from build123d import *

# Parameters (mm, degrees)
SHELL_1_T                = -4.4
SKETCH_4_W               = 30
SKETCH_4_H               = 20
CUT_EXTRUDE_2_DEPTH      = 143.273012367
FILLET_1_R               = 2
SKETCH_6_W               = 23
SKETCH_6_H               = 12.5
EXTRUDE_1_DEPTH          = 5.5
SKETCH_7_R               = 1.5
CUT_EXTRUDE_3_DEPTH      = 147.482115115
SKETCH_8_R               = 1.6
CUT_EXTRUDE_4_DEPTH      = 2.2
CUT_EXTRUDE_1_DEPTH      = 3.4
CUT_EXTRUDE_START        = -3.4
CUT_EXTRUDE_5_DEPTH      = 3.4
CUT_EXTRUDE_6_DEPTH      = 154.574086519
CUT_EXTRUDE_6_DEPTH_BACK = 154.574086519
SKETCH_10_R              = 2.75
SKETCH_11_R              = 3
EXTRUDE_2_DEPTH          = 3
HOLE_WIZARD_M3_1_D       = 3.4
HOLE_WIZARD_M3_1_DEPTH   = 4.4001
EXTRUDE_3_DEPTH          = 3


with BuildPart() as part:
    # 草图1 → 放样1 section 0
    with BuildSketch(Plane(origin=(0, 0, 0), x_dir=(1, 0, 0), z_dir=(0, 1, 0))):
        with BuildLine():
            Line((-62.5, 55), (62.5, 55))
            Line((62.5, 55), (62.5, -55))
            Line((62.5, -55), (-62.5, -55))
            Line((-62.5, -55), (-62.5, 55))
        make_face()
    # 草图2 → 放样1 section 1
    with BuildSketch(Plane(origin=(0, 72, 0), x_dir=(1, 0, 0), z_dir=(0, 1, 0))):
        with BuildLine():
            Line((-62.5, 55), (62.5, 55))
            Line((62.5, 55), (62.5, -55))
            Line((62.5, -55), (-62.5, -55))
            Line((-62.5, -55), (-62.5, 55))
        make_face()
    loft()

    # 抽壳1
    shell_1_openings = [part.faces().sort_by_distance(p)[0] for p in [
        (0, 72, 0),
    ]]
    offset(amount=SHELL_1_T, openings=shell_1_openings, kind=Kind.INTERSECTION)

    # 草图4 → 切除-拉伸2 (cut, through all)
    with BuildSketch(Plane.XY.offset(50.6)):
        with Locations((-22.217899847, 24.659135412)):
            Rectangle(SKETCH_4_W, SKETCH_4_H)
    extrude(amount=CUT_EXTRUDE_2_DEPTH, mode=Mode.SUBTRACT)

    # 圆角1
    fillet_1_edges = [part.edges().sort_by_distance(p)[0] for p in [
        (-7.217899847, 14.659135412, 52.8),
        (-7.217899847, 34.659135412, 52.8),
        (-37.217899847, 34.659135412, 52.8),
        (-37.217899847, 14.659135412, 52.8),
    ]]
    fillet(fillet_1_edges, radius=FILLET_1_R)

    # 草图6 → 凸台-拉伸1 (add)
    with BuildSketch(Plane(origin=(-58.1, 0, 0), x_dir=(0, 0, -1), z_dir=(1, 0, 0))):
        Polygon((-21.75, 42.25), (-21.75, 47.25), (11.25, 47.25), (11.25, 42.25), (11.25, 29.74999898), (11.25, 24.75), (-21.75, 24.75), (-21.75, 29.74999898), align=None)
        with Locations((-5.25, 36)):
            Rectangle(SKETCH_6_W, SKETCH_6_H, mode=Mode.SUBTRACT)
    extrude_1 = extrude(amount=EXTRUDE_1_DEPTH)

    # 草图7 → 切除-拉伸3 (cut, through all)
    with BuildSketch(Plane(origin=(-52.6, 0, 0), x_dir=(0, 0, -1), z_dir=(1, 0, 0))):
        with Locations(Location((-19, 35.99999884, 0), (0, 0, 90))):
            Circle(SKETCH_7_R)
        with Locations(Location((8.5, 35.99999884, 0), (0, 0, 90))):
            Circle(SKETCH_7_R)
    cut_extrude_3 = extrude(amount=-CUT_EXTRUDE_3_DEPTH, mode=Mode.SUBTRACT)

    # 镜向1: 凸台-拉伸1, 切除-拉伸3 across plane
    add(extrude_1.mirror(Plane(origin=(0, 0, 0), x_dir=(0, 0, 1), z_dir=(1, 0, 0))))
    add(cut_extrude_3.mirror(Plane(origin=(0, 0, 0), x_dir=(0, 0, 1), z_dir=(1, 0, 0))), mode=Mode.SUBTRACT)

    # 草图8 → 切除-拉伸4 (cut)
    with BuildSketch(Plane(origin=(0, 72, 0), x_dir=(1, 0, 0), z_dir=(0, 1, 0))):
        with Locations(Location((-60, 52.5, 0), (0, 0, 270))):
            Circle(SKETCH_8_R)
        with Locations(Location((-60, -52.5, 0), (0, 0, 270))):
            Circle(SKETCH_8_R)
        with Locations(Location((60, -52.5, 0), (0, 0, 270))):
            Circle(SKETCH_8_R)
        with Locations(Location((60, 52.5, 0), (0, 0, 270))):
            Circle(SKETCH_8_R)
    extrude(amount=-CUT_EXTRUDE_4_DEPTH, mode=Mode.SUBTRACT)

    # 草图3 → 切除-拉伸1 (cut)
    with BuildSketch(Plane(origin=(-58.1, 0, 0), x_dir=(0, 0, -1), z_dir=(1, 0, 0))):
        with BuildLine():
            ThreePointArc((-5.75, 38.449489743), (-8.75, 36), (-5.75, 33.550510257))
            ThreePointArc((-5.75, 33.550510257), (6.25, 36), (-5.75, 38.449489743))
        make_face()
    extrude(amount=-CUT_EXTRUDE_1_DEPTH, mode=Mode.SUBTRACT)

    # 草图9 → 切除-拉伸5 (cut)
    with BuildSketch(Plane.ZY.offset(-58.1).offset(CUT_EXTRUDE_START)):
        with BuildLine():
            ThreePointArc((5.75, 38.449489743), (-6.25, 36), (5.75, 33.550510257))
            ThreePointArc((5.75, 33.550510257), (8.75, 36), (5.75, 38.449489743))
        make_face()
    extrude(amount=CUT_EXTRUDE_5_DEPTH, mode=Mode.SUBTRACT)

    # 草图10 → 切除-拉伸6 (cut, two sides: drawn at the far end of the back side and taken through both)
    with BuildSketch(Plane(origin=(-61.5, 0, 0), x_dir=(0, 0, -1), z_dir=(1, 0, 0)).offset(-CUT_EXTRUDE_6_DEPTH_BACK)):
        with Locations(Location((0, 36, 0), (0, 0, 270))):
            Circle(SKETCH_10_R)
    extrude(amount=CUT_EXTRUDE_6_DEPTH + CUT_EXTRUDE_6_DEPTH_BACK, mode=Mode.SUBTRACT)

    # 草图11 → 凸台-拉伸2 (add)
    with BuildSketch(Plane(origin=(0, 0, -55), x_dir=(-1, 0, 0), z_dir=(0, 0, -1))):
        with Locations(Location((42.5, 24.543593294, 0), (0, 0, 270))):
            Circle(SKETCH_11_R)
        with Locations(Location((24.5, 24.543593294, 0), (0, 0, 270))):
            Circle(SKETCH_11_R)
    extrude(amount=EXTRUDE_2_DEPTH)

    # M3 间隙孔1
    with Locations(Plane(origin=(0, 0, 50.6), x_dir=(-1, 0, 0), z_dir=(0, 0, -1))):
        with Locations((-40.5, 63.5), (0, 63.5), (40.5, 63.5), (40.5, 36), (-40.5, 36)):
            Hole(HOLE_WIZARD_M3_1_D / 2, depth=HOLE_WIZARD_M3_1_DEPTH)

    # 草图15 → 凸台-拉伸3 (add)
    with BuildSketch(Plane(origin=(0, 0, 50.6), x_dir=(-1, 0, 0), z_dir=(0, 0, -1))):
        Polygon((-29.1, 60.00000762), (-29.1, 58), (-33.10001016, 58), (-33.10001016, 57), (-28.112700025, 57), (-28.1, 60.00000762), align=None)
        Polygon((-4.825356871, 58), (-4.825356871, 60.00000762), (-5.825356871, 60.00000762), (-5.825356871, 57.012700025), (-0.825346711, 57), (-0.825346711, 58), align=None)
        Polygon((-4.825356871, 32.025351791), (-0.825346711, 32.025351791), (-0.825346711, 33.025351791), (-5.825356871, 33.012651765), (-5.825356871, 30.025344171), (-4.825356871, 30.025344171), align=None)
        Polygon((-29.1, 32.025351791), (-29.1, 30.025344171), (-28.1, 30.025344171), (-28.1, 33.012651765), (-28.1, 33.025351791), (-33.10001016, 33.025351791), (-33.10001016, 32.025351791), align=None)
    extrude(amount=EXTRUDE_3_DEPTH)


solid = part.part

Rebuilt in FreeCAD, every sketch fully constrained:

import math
import FreeCAD as App
import Part
import Sketcher
from FreeCAD import Vector


def edges_at(feature, points):
    """Names of the edges that pass closest to the given points."""
    edges = feature.Shape.Edges
    near = lambda p: min(range(len(edges)), key=lambda i: edges[i].distToShape(Part.Vertex(*p))[0])
    return sorted({f"Edge{near(p) + 1}" for p in points})


def faces_at(feature, points):
    """Names of the faces that lie closest to the given points."""
    faces = feature.Shape.Faces
    near = lambda p: min(range(len(faces)), key=lambda i: faces[i].distToShape(Part.Vertex(*p))[0])
    return sorted({f"Face{near(p) + 1}" for p in points})


def add_polygon(sketch, points):
    """Adds a closed chain of lines whose ends are joined by coincident constraints."""
    first, n = sketch.GeometryCount, len(points)
    for a, b in zip(points, points[1:] + points[:1]):
        sketch.addGeometry(Part.LineSegment(App.Vector(*a, 0), App.Vector(*b, 0)), False)
    for i in range(n):
        sketch.addConstraint(Sketcher.Constraint("Coincident", first + i, 2, first + (i + 1) % n, 1))

doc = App.newDocument("Part")
params = doc.addObject("Spreadsheet::Sheet", "Params")
for row, (alias, value) in enumerate([
    ("sketch1_width", "125 mm"),
    ("sketch1_height", "110 mm"),
    ("sketch2_width", "125 mm"),
    ("sketch2_height", "110 mm"),
    ("thickness_wall", "4.4 mm"),
    ("sketch3_width", "30 mm"),
    ("sketch3_height", "20 mm"),
    ("fillet_radius", "2 mm"),
    ("sketch4_height", "33 mm"),
    ("sketch4_height2", "23 mm"),
    ("sketch4_width", "22.5 mm"),
    ("sketch4_width2", "12.5 mm"),
    ("pad1_length", "5.5 mm"),
    ("sketch5_diameter", "3 mm"),
    ("sketch6_diameter", "3.2 mm"),
    ("pocket3_length", "2.2 mm"),
    ("sketch7_radius", "2.5 mm"),
    ("sketch7_radius2", "6.25 mm"),
    ("sketch7_height", "0.5 mm"),
    ("pocket4_length", "3.4 mm"),
    ("sketch8_radius", "2.5 mm"),
    ("sketch8_radius2", "6.25 mm"),
    ("pocket5_length", "3.4 mm"),
    ("sketch9_diameter", "5.5 mm"),
    ("sketch10_diameter", "6 mm"),
    ("pad2_length", "3 mm"),
    ("sketch11_diameter", "3.4 mm"),
    ("hole_diameter", "3.4 mm"),
    ("hole_depth", "4.4001 mm"),
    ("sketch12_width", "1 mm"),
    ("pad3_length", "3 mm"),
], start=1):
    params.set(f"A{row}", alias)
    params.set(f"B{row}", "=" + value)
    params.setAlias(f"B{row}", alias)

body = doc.addObject("PartDesign::Body", "Body")

# Sketch on XZ plane
sketch1 = body.newObject("Sketcher::SketchObject", "Sketch")
sketch1.AttachmentSupport = (doc.getObject("XZ_Plane"), [""])
sketch1.MapMode = "FlatFace"
add_polygon(sketch1, [(62.5, -55), (-62.5, -55), (-62.5, 55), (62.5, 55)])  # lines 0-3
sketch1.addConstraint([
    Sketcher.Constraint("Horizontal", 0),
    Sketcher.Constraint("Vertical", 1),
    Sketcher.Constraint("Horizontal", 2),
    Sketcher.Constraint("Vertical", 3),
    Sketcher.Constraint("Symmetric", 0, 2, 2, 2, -1, 1),
    Sketcher.Constraint("DistanceX", 0, 2, 0, 1, 125.0),
    Sketcher.Constraint("DistanceY", 1, 1, 1, 2, 110.0),
])
sketch1.setExpression("Constraints[9]", "Params.sketch1_width")
sketch1.setExpression("Constraints[10]", "Params.sketch1_height")

# Sketch on XZ plane
sketch2 = body.newObject("Sketcher::SketchObject", "Sketch001")
sketch2.AttachmentSupport = (doc.getObject("XZ_Plane"), [""])
sketch2.MapMode = "FlatFace"
sketch2.AttachmentOffset = App.Placement(Vector(0, 0, -72), App.Rotation())
add_polygon(sketch2, [(62.5, -55), (-62.5, -55), (-62.5, 55), (62.5, 55)])  # lines 0-3
sketch2.addConstraint([
    Sketcher.Constraint("Horizontal", 0),
    Sketcher.Constraint("Vertical", 1),
    Sketcher.Constraint("Horizontal", 2),
    Sketcher.Constraint("Vertical", 3),
    Sketcher.Constraint("Symmetric", 0, 2, 2, 2, -1, 1),
    Sketcher.Constraint("DistanceX", 0, 2, 0, 1, 125.0),
    Sketcher.Constraint("DistanceY", 1, 1, 1, 2, 110.0),
])
sketch2.setExpression("Constraints[9]", "Params.sketch2_width")
sketch2.setExpression("Constraints[10]", "Params.sketch2_height")

additiveloft = body.newObject("PartDesign::AdditiveLoft", "AdditiveLoft")
additiveloft.Profile = sketch1
additiveloft.Sections = [sketch2]
doc.recompute()

thickness = body.newObject("PartDesign::Thickness", "Thickness")
thickness.Base = (additiveloft, faces_at(additiveloft, [(0, 72, 0)]))
thickness.setExpression("Value", "Params.thickness_wall")
thickness.Reversed = True
thickness.Join = "Intersection"

# Sketch on XY plane
sketch3 = body.newObject("Sketcher::SketchObject", "Sketch002")
sketch3.AttachmentSupport = (doc.getObject("XY_Plane"), [""])
sketch3.MapMode = "FlatFace"
sketch3.AttachmentOffset = App.Placement(Vector(0, 0, 50.6), App.Rotation())
add_polygon(sketch3, [(-37.2179, 34.659135), (-37.2179, 14.659135), (-7.2179, 14.659135), (-7.2179, 34.659135)])  # lines 0-3
sketch3.addConstraint([
    Sketcher.Constraint("Vertical", 0),
    Sketcher.Constraint("Horizontal", 1),
    Sketcher.Constraint("Vertical", 2),
    Sketcher.Constraint("Horizontal", 3),
    Sketcher.Constraint("DistanceX", 1, 1, 1, 2, 30.0),
    Sketcher.Constraint("DistanceY", 0, 2, 0, 1, 20.0),
    Sketcher.Constraint("DistanceX", 0, 2, -1, 1, 37.2179),
    Sketcher.Constraint("DistanceY", -1, 1, 0, 2, 14.659135),
])
sketch3.setExpression("Constraints[8]", "Params.sketch3_width")
sketch3.setExpression("Constraints[9]", "Params.sketch3_height")
pocket1 = body.newObject("PartDesign::Pocket", "Pocket")
pocket1.Profile = sketch3
pocket1.Type = "ThroughAll"
pocket1.Reversed = True
doc.recompute()

fillet = body.newObject("PartDesign::Fillet", "Fillet")
fillet.Base = (pocket1, edges_at(pocket1, [
    (-7.218, 14.659, 52.8),
    (-7.218, 34.659, 52.8),
    (-37.218, 34.659, 52.8),
    (-37.218, 14.659, 52.8),
]))
fillet.setExpression("Radius", "Params.fillet_radius")

# Sketch on YZ plane
sketch4 = body.newObject("Sketcher::SketchObject", "Sketch003")
sketch4.AttachmentSupport = (doc.getObject("YZ_Plane"), [""])
sketch4.MapMode = "FlatFace"
sketch4.AttachmentOffset = App.Placement(Vector(0, 0, -58.1), App.Rotation())
add_polygon(sketch4, [(47.25, 21.75), (24.75, 21.75), (24.75, -11.25), (47.25, -11.25)])  # lines 0-3
add_polygon(sketch4, [(29.75, 16.75), (42.25, 16.75), (42.25, -6.25), (29.75, -6.25)])  # lines 4-7
sketch4.addConstraint([
    Sketcher.Constraint("Horizontal", 0),
    Sketcher.Constraint("Vertical", 1),
    Sketcher.Constraint("Horizontal", 2),
    Sketcher.Constraint("Vertical", 3),
    Sketcher.Constraint("Horizontal", 4),
    Sketcher.Constraint("Vertical", 5),
    Sketcher.Constraint("Horizontal", 6),
    Sketcher.Constraint("Vertical", 7),
    Sketcher.Constraint("DistanceY", 1, 2, 1, 1, 33.0),
    Sketcher.Constraint("DistanceY", 5, 2, 5, 1, 23.0),
    Sketcher.Constraint("DistanceX", 0, 2, 0, 1, 22.5),
    Sketcher.Constraint("DistanceX", 4, 1, 4, 2, 12.5),
    Sketcher.Constraint("DistanceX", 4, 2, 3, 2, 5.0),
    Sketcher.Constraint("DistanceY", 4, 2, 3, 2, 5.0),
    Sketcher.Constraint("DistanceX", -1, 1, 0, 2, 24.75),
    Sketcher.Constraint("DistanceY", -1, 1, 0, 2, 21.75),
])
sketch4.setExpression("Constraints[16]", "Params.sketch4_height")
sketch4.setExpression("Constraints[17]", "Params.sketch4_height2")
sketch4.setExpression("Constraints[18]", "Params.sketch4_width")
sketch4.setExpression("Constraints[19]", "Params.sketch4_width2")
pad1 = body.newObject("PartDesign::Pad", "Pad")
pad1.Profile = sketch4
pad1.setExpression("Length", "Params.pad1_length")

# Sketch on YZ plane
sketch5 = body.newObject("Sketcher::SketchObject", "Sketch004")
sketch5.AttachmentSupport = (doc.getObject("YZ_Plane"), [""])
sketch5.MapMode = "FlatFace"
sketch5.AttachmentOffset = App.Placement(Vector(0, 0, -52.6), App.Rotation())
sketch5.addGeometry([
    Part.Circle(Vector(35.999999, 19, 0), Vector(0, 0, 1), 1.5),
    Part.Circle(Vector(35.999999, -8.5, 0), Vector(0, 0, 1), 1.5),
], False)
sketch5.addConstraint([
    Sketcher.Constraint("Equal", 0, 1),
    Sketcher.Constraint("Vertical", 0, 3, 1, 3),
    Sketcher.Constraint("Diameter", 0, 3.0),
    Sketcher.Constraint("DistanceX", -1, 1, 0, 3, 35.999999),
    Sketcher.Constraint("DistanceY", -1, 1, 0, 3, 19.0),
    Sketcher.Constraint("DistanceY", 1, 3, -1, 1, 8.5),
])
sketch5.setExpression("Constraints[2]", "Params.sketch5_diameter")
pocket2 = body.newObject("PartDesign::Pocket", "Pocket001")
pocket2.Profile = sketch5
pocket2.Type = "ThroughAll"
doc.recompute()

mirrored = body.newObject("PartDesign::Mirrored", "Mirrored")
mirrored.Originals = [pad1, pocket2]
mirrored.MirrorPlane = (doc.getObject("YZ_Plane"), [""])
body.Tip = mirrored

# Sketch on XZ plane
sketch6 = body.newObject("Sketcher::SketchObject", "Sketch005")
sketch6.AttachmentSupport = (doc.getObject("XZ_Plane"), [""])
sketch6.MapMode = "FlatFace"
sketch6.AttachmentOffset = App.Placement(Vector(0, 0, -72), App.Rotation())
sketch6.addGeometry([
    Part.Circle(Vector(-60, -52.5, 0), Vector(0, 0, 1), 1.6),
    Part.Circle(Vector(-60, 52.5, 0), Vector(0, 0, 1), 1.6),
    Part.Circle(Vector(60, 52.5, 0), Vector(0, 0, 1), 1.6),
    Part.Circle(Vector(60, -52.5, 0), Vector(0, 0, 1), 1.6),
], False)
sketch6.addConstraint([
    Sketcher.Constraint("Equal", 0, 1),
    Sketcher.Constraint("Equal", 1, 2),
    Sketcher.Constraint("Equal", 2, 3),
    Sketcher.Constraint("Symmetric", 0, 3, 2, 3, -1, 1),
    Sketcher.Constraint("Symmetric", 1, 3, 3, 3, -1, 1),
    Sketcher.Constraint("Symmetric", 1, 3, 2, 3, -2),
    Sketcher.Constraint("Diameter", 0, 3.2),
    Sketcher.Constraint("DistanceX", 0, 3, -1, 1, 60.0),
    Sketcher.Constraint("DistanceY", 0, 3, 1, 3, 105.0),
])
sketch6.setExpression("Constraints[6]", "Params.sketch6_diameter")
pocket3 = body.newObject("PartDesign::Pocket", "Pocket002")
pocket3.Profile = sketch6
pocket3.setExpression("Length", "Params.pocket3_length")
pocket3.Reversed = True

# Sketch on YZ plane
sketch7 = body.newObject("Sketcher::SketchObject", "Sketch006")
sketch7.AttachmentSupport = (doc.getObject("YZ_Plane"), [""])
sketch7.MapMode = "FlatFace"
sketch7.AttachmentOffset = App.Placement(Vector(0, 0, -58.1), App.Rotation())
sketch7.addGeometry([
    Part.ArcOfCircle(Part.Circle(Vector(36, 6.25, 0), Vector(0, 0, 1), 2.5), math.radians(-11.536959), math.radians(191.536959)),
    Part.ArcOfCircle(Part.Circle(Vector(36, 0, 0), Vector(0, 0, 1), 6.25), math.radians(113.073918), math.radians(426.926082)),
], False)
sketch7.addConstraint([
    Sketcher.Constraint("Coincident", 0, 1, 1, 2),
    Sketcher.Constraint("Coincident", 1, 1, 0, 2),
    Sketcher.Constraint("PointOnObject", 1, 3, -1),
    Sketcher.Constraint("Horizontal", 0, 1, 1, 1),
    Sketcher.Constraint("Radius", 0, 2.5),
    Sketcher.Constraint("Radius", 1, 6.25),
    Sketcher.Constraint("DistanceX", -1, 1, 0, 3, 36.0),
    Sketcher.Constraint("DistanceY", 0, 1, 0, 3, 0.5),
])
sketch7.setExpression("Constraints[4]", "Params.sketch7_radius")
sketch7.setExpression("Constraints[5]", "Params.sketch7_radius2")
sketch7.setExpression("Constraints[7]", "Params.sketch7_height")
pocket4 = body.newObject("PartDesign::Pocket", "Pocket003")
pocket4.Profile = sketch7
pocket4.setExpression("Length", "Params.pocket4_length")

# Sketch on YZ plane
sketch8 = body.newObject("Sketcher::SketchObject", "Sketch007")
sketch8.AttachmentSupport = (doc.getObject("YZ_Plane"), [""])
sketch8.MapMode = "FlatFace"
sketch8.AttachmentOffset = App.Placement(Vector(0, 0, 61.5), App.Rotation())
sketch8.addGeometry([
    Part.ArcOfCircle(Part.Circle(Vector(36, 0, 0), Vector(0, 0, 1), 6.25), math.radians(113.073918), math.radians(426.926082)),
    Part.ArcOfCircle(Part.Circle(Vector(36, 6.25, 0), Vector(0, 0, 1), 2.5), math.radians(-11.536959), math.radians(191.536959)),
], False)
sketch8.addConstraint([
    Sketcher.Constraint("Coincident", 0, 1, 1, 2),
    Sketcher.Constraint("Coincident", 1, 1, 0, 2),
    Sketcher.Constraint("PointOnObject", 0, 3, -1),
    Sketcher.Constraint("Horizontal", 0, 1, 1, 1),
    Sketcher.Constraint("Radius", 1, 2.5),
    Sketcher.Constraint("Radius", 0, 6.25),
    Sketcher.Constraint("DistanceX", -1, 1, 0, 3, 36.0),
    Sketcher.Constraint("DistanceY", 0, 1, 1, 3, 0.5),
])
sketch8.setExpression("Constraints[4]", "Params.sketch8_radius")
sketch8.setExpression("Constraints[5]", "Params.sketch8_radius2")
pocket5 = body.newObject("PartDesign::Pocket", "Pocket004")
pocket5.Profile = sketch8
pocket5.setExpression("Length", "Params.pocket5_length")

# Sketch on YZ plane
sketch9 = body.newObject("Sketcher::SketchObject", "Sketch008")
sketch9.AttachmentSupport = (doc.getObject("YZ_Plane"), [""])
sketch9.MapMode = "FlatFace"
sketch9.AttachmentOffset = App.Placement(Vector(0, 0, -61.5), App.Rotation())
sketch9.addGeometry(Part.Circle(Vector(36, 0, 0), Vector(0, 0, 1), 2.75), False)
sketch9.addConstraint([
    Sketcher.Constraint("PointOnObject", 0, 3, -1),
    Sketcher.Constraint("Diameter", 0, 5.5),
    Sketcher.Constraint("DistanceX", -1, 1, 0, 3, 36.0),
])
sketch9.setExpression("Constraints[1]", "Params.sketch9_diameter")
pocket6 = body.newObject("PartDesign::Pocket", "Pocket005")
pocket6.Profile = sketch9
pocket6.Type = "ThroughAll"
pocket6.Midplane = True

# Sketch on XY plane
sketch10 = body.newObject("Sketcher::SketchObject", "Sketch009")
sketch10.AttachmentSupport = (doc.getObject("XY_Plane"), [""])
sketch10.MapMode = "FlatFace"
sketch10.AttachmentOffset = App.Placement(Vector(0, 0, -55), App.Rotation())
sketch10.addGeometry([
    Part.Circle(Vector(-42.5, 24.543593, 0), Vector(0, 0, 1), 3),
    Part.Circle(Vector(-24.5, 24.543593, 0), Vector(0, 0, 1), 3),
], False)
sketch10.addConstraint([
    Sketcher.Constraint("Equal", 0, 1),
    Sketcher.Constraint("Horizontal", 0, 3, 1, 3),
    Sketcher.Constraint("Diameter", 0, 6.0),
    Sketcher.Constraint("DistanceX", 0, 3, 1, 3, 18.0),
    Sketcher.Constraint("DistanceX", 0, 3, -1, 1, 42.5),
    Sketcher.Constraint("DistanceY", -1, 1, 0, 3, 24.543593),
])
sketch10.setExpression("Constraints[2]", "Params.sketch10_diameter")
pad2 = body.newObject("PartDesign::Pad", "Pad001")
pad2.Profile = sketch10
pad2.setExpression("Length", "Params.pad2_length")
pad2.Reversed = True

# Sketch on XY plane
sketch11 = body.newObject("Sketcher::SketchObject", "Sketch010")
sketch11.AttachmentSupport = (doc.getObject("XY_Plane"), [""])
sketch11.MapMode = "FlatFace"
sketch11.AttachmentOffset = App.Placement(Vector(0, 0, 50.6), App.Rotation())
sketch11.addGeometry([
    Part.Circle(Vector(40.5, 63.5, 0), Vector(0, 0, 1), 1.7),  # 0
    Part.Circle(Vector(0, 63.5, 0), Vector(0, 0, 1), 1.7),  # 1
    Part.Circle(Vector(-40.5, 63.5, 0), Vector(0, 0, 1), 1.7),  # 2
    Part.Circle(Vector(-40.5, 36, 0), Vector(0, 0, 1), 1.7),  # 3
    Part.Circle(Vector(40.5, 36, 0), Vector(0, 0, 1), 1.7),  # 4
], False)
sketch11.addConstraint([
    Sketcher.Constraint("Equal", 0, 1),
    Sketcher.Constraint("Equal", 1, 2),
    Sketcher.Constraint("Equal", 2, 3),
    Sketcher.Constraint("Equal", 3, 4),
    Sketcher.Constraint("Symmetric", 0, 3, 2, 3, -2),
    Sketcher.Constraint("Symmetric", 3, 3, 4, 3, -2),
    Sketcher.Constraint("PointOnObject", 1, 3, -2),
    Sketcher.Constraint("Horizontal", 0, 3, 1, 3),
    Sketcher.Constraint("Vertical", 2, 3, 3, 3),
    Sketcher.Constraint("Diameter", 0, 3.4),
    Sketcher.Constraint("DistanceY", -1, 1, 3, 3, 36.0),
    Sketcher.Constraint("DistanceX", 2, 3, 0, 3, 81.0),
    Sketcher.Constraint("DistanceY", -1, 1, 0, 3, 63.5),
])
sketch11.setExpression("Constraints[9]", "Params.sketch11_diameter")
doc.recompute()
hole = body.newObject("PartDesign::Hole", "Hole")
hole.Profile = sketch11
hole.ThreadType = "None"
hole.setExpression("Diameter", "Params.hole_diameter")
hole.DepthType = "Dimension"
hole.setExpression("Depth", "Params.hole_depth")
hole.DrillPoint = "Flat"
hole.Reversed = True

# Sketch on XY plane
sketch12 = body.newObject("Sketcher::SketchObject", "Sketch011")
sketch12.AttachmentSupport = (doc.getObject("XY_Plane"), [""])
sketch12.MapMode = "FlatFace"
sketch12.AttachmentOffset = App.Placement(Vector(0, 0, 50.6), App.Rotation())
add_polygon(sketch12, [(29.1, 60.000008), (29.1, 58), (33.10001, 58), (33.10001, 57), (28.1127, 57), (28.1, 60.000008)])  # lines 0-5
add_polygon(sketch12, [(4.825357, 58), (4.825357, 60.000008), (5.825357, 60.000008), (5.825357, 57.0127), (0.825347, 57), (0.825347, 58)])  # lines 6-11
add_polygon(sketch12, [(4.825357, 32.025352), (0.825347, 32.025352), (0.825347, 33.025352), (5.825357, 33.012652), (5.825357, 30.025344), (4.825357, 30.025344)])  # lines 12-17
add_polygon(sketch12, [(29.1, 32.025352), (29.1, 30.025344), (28.1, 30.025344), (28.1, 33.025352), (33.10001, 33.025352), (33.10001, 32.025352)])  # lines 18-23
sketch12.addConstraint([
    Sketcher.Constraint("Vertical", 0),
    Sketcher.Constraint("Horizontal", 1),
    Sketcher.Constraint("Vertical", 2),
    Sketcher.Constraint("Horizontal", 3),
    Sketcher.Constraint("Horizontal", 5),
    Sketcher.Constraint("Vertical", 6),
    Sketcher.Constraint("Horizontal", 7),
    Sketcher.Constraint("Vertical", 8),
    Sketcher.Constraint("Vertical", 10),
    Sketcher.Constraint("Horizontal", 11),
    Sketcher.Constraint("Horizontal", 12),
    Sketcher.Constraint("Vertical", 13),
    Sketcher.Constraint("Vertical", 15),
    Sketcher.Constraint("Horizontal", 16),
    Sketcher.Constraint("Vertical", 17),
    Sketcher.Constraint("Vertical", 18),
    Sketcher.Constraint("Horizontal", 19),
    Sketcher.Constraint("Vertical", 20),
    Sketcher.Constraint("Horizontal", 21),
    Sketcher.Constraint("Vertical", 22),
    Sketcher.Constraint("Horizontal", 23),
    Sketcher.Constraint("Horizontal", 5, 2, 6, 2),
    Sketcher.Constraint("Horizontal", 3, 2, 9, 2),
    Sketcher.Constraint("Horizontal", 1, 2, 10, 2),
    Sketcher.Constraint("Horizontal", 16, 2, 18, 2),
    Sketcher.Constraint("Horizontal", 13, 2, 20, 2),
    Sketcher.Constraint("Horizontal", 17, 2, 22, 2),
    Sketcher.Constraint("Vertical", 10, 2, 12, 2),
    Sketcher.Constraint("Vertical", 8, 2, 14, 2),
    Sketcher.Constraint("Vertical", 11, 2, 16, 2),
    Sketcher.Constraint("Vertical", 5, 2, 18, 2),
    Sketcher.Constraint("Vertical", 4, 2, 19, 2),
    Sketcher.Constraint("Vertical", 2, 2, 21, 2),
    Sketcher.Constraint("Equal", 5, 7),
    Sketcher.Constraint("Equal", 1, 11),
    Sketcher.Constraint("Equal", 19, 2),
    Sketcher.Constraint("Equal", 10, 13),
    Sketcher.Constraint("Equal", 8, 15),
    Sketcher.Constraint("Equal", 6, 17),
    Sketcher.Constraint("DistanceX", 5, 1, 5, 2, 1.0),
    Sketcher.Constraint("DistanceY", -1, 1, 0, 2, 58.0),
    Sketcher.Constraint("DistanceX", -1, 1, 0, 2, 29.1),
    Sketcher.Constraint("DistanceX", 1, 1, 1, 2, 4.00001),
    Sketcher.Constraint("DistanceX", 3, 2, 3, 1, 4.98731),
    Sketcher.Constraint("DistanceY", -1, 1, 8, 2, 57.0127),
    Sketcher.Constraint("DistanceY", 0, 2, 0, 1, 2.000008),
    Sketcher.Constraint("DistanceY", -1, 1, 12, 2, 32.025352),
    Sketcher.Constraint("DistanceX", -1, 1, 6, 2, 4.825357),
])
sketch12.setExpression("Constraints[63]", "Params.sketch12_width")
pad3 = body.newObject("PartDesign::Pad", "Pad002")
pad3.Profile = sketch12
pad3.setExpression("Length", "Params.pad3_length")
pad3.Reversed = True

doc.recompute()
